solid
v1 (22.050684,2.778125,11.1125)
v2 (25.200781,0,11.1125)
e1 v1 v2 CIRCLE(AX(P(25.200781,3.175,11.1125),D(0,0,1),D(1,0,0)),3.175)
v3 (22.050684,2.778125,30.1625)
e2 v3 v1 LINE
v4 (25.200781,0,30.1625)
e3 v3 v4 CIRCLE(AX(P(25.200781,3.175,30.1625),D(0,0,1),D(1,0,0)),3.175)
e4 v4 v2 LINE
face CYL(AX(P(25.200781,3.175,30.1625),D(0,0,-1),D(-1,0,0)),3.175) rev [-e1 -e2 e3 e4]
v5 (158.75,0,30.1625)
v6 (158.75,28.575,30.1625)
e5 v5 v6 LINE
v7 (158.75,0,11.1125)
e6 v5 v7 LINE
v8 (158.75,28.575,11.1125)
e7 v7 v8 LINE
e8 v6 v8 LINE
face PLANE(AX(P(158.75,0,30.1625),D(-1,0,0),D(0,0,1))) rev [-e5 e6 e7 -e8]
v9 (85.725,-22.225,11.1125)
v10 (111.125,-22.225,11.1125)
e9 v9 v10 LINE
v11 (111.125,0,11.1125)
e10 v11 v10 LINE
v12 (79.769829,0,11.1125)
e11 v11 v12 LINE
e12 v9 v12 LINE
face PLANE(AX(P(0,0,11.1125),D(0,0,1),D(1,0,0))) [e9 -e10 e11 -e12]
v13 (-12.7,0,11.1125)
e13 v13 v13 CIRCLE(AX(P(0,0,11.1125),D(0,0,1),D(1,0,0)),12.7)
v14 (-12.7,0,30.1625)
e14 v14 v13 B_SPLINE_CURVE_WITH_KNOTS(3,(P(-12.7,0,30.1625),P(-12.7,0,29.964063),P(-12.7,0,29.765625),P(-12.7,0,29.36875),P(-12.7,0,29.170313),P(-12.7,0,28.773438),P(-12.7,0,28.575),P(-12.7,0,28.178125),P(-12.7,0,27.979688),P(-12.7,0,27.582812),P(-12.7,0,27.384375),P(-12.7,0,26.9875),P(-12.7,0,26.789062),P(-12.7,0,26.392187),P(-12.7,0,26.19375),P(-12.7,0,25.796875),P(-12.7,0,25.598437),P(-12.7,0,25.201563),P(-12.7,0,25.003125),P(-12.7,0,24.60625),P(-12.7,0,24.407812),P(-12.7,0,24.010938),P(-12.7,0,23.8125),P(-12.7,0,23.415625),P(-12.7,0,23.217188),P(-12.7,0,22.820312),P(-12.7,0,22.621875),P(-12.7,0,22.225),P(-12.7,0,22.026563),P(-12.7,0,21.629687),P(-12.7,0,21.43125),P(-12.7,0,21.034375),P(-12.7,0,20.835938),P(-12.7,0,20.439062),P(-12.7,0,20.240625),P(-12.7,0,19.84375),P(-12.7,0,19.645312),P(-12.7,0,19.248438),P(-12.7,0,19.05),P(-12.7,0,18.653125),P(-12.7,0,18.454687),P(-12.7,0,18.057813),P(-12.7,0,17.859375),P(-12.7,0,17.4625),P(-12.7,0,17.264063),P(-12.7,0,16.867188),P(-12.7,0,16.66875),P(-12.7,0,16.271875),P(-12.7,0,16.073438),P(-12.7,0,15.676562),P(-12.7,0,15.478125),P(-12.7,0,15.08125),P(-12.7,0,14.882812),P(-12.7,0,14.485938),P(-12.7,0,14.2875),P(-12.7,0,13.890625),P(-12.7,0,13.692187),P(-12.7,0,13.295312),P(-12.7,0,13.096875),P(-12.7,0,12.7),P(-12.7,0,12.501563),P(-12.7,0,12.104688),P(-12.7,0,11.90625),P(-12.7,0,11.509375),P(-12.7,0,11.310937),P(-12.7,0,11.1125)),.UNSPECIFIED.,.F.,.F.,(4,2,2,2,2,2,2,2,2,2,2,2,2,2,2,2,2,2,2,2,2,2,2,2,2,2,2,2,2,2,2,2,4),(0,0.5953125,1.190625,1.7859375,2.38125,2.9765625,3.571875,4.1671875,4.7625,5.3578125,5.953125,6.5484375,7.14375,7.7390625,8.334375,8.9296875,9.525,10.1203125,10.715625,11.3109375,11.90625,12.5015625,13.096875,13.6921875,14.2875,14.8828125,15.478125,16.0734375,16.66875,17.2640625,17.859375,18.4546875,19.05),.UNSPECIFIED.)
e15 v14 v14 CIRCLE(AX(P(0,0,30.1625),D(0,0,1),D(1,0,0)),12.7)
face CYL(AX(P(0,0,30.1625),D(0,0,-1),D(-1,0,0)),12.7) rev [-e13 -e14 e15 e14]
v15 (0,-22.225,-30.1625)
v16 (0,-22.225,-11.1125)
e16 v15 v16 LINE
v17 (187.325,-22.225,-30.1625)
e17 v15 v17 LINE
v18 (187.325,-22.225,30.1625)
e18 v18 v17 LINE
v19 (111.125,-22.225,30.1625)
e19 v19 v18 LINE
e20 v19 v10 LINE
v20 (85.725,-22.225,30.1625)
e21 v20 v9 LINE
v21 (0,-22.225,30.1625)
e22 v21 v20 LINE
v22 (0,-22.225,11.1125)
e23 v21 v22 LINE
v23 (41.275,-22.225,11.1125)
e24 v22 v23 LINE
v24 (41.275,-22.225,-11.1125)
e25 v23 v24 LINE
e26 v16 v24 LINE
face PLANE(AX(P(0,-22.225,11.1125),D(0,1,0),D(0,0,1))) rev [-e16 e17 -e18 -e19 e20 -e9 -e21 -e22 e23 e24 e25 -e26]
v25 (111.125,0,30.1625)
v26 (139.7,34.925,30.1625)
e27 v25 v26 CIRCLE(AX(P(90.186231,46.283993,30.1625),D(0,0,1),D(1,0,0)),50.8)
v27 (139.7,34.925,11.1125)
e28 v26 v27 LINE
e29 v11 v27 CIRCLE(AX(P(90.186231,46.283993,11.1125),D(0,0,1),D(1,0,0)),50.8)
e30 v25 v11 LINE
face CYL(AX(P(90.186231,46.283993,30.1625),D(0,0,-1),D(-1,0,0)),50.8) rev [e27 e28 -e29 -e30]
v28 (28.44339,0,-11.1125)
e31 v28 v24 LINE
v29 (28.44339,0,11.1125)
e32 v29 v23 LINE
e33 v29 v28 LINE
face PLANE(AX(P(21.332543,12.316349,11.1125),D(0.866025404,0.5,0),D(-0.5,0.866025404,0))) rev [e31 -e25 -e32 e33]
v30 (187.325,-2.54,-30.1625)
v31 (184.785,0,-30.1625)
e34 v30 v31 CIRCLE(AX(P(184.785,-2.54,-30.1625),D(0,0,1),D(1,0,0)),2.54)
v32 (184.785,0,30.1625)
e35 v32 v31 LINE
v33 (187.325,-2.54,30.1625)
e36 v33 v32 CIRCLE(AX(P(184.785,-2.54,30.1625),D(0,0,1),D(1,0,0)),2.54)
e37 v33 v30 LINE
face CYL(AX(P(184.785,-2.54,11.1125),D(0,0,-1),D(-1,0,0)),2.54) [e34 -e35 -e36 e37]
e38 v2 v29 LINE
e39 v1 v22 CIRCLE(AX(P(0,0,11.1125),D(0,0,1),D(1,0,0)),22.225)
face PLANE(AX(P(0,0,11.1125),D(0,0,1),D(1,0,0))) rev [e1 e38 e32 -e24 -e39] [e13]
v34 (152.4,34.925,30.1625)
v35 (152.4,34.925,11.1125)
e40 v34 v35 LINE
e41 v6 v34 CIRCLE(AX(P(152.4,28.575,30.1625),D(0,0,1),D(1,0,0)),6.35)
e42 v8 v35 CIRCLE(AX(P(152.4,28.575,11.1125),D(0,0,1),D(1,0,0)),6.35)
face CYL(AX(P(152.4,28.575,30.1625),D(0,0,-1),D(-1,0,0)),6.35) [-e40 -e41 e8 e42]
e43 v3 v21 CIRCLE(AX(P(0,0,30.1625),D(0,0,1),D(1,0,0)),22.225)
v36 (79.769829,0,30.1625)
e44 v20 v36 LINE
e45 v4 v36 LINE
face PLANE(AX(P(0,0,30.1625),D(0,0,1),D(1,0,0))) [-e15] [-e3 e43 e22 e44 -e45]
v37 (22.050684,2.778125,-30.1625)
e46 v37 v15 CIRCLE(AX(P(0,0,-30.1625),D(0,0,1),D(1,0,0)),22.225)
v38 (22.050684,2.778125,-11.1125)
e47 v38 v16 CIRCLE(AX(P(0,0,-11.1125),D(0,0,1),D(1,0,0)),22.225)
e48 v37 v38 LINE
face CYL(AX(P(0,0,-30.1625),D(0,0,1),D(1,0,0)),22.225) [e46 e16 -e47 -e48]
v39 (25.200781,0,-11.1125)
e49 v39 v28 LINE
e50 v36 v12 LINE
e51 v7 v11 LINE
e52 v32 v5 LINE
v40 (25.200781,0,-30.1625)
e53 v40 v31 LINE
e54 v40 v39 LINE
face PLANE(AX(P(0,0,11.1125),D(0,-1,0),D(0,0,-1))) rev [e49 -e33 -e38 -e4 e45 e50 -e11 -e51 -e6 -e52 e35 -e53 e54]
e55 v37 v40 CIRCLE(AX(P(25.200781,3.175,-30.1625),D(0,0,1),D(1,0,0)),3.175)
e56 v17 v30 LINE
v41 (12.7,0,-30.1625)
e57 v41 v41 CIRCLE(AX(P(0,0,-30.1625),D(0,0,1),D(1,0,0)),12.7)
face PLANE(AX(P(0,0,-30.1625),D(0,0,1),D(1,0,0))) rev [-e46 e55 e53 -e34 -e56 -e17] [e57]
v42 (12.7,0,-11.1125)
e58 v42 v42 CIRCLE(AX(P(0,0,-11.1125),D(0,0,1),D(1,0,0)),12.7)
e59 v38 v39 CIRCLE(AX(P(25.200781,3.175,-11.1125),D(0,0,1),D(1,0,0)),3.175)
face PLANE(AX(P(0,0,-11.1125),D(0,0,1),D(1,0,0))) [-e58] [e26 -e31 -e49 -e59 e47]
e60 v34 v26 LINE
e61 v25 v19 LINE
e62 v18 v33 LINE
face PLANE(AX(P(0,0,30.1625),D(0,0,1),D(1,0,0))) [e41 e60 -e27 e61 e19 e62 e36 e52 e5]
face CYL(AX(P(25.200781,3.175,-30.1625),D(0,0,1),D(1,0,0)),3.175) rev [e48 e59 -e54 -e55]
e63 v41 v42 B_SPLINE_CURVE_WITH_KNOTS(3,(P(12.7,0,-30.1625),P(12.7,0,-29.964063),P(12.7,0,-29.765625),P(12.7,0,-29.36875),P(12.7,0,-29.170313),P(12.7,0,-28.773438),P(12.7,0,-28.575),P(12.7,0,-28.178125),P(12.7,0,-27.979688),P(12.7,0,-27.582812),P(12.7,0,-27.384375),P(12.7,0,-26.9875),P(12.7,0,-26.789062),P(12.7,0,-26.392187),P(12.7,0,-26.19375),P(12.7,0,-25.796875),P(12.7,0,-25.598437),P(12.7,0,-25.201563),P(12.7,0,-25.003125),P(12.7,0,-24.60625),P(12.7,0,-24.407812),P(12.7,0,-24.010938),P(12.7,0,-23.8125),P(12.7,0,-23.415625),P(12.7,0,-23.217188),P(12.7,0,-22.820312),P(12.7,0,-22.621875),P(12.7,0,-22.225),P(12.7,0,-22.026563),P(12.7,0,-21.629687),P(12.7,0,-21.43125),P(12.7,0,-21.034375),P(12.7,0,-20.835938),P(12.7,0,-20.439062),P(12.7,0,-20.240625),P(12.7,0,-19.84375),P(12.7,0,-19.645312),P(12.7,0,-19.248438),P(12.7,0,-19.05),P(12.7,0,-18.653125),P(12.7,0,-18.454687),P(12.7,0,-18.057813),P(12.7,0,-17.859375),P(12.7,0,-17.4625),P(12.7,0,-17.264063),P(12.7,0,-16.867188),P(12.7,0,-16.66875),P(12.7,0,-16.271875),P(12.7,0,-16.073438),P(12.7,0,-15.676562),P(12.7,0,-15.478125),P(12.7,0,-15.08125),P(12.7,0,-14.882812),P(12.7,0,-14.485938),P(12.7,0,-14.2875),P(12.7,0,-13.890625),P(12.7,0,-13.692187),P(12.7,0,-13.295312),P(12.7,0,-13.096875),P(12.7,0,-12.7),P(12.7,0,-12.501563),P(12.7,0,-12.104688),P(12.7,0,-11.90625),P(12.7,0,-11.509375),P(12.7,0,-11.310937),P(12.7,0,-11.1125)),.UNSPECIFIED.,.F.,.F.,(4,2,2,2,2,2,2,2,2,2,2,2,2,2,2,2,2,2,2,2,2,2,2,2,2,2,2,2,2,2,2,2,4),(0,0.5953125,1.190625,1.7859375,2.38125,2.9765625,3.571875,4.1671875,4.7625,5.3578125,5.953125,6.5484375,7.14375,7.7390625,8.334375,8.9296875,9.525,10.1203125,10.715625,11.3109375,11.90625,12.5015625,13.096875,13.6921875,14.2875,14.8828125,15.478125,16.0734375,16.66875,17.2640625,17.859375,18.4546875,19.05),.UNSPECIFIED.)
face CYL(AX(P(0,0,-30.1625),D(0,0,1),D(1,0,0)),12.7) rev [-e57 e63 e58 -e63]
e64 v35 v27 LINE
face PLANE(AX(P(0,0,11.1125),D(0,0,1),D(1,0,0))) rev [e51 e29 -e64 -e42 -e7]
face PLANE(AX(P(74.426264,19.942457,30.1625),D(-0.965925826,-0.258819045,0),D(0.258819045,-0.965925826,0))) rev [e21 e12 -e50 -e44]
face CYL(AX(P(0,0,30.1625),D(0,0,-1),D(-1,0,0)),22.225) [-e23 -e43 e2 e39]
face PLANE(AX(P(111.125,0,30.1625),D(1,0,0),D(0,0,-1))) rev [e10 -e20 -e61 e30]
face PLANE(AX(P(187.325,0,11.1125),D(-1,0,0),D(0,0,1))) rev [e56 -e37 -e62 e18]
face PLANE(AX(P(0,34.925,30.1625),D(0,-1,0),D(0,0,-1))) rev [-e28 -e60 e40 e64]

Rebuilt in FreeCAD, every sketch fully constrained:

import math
import FreeCAD as App
import Part
import Sketcher
from FreeCAD import Vector
Q = App.Units.Quantity

doc = App.newDocument("Part")
body = doc.addObject("PartDesign::Body", "Body")

# Sketch on XY plane
sketch1 = doc.addObject("Sketcher::SketchObject", "Sketch")
body.addObject(sketch1)
sketch1.AttachmentSupport = (doc.XY_Plane, [""])
sketch1.MapMode = "FlatFace"
sketch1.addGeometry([
    Part.LineSegment(Vector(28.4, 0, 0), Vector(41.3, -22.2, 0)),  # 0
    Part.LineSegment(Vector(41.3, -22.2, 0), Vector(187.3, -22.2, 0)),  # 1
    Part.LineSegment(Vector(187.3, -22.2, 0), Vector(187.3, -2.5, 0)),  # 2
    Part.ArcOfCircle(Part.Circle(Vector(184.8, -2.5, 0), Vector(0, 0, 1), 2.5), math.radians(0), math.radians(90)),  # 3
    Part.LineSegment(Vector(184.8, 0, 0), Vector(28.4, 0, 0)),  # 4
], False)
sketch1.addConstraint([
    Sketcher.Constraint("Coincident", 0, 2, 1, 1),
    Sketcher.Constraint("Coincident", 1, 2, 2, 1),
    Sketcher.Constraint("Tangent", 2, 2, 3, 1),
    Sketcher.Constraint("Tangent", 3, 2, 4, 1),
    Sketcher.Constraint("Coincident", 4, 2, 0, 1),
    Sketcher.Constraint("Horizontal", 1),
    Sketcher.Constraint("Vertical", 2),
    Sketcher.Constraint("Horizontal", 4),
    Sketcher.Constraint("PointOnObject", 3, 2, -1),
    Sketcher.Constraint("Radius", 3, Q("0.1 in")),
    Sketcher.Constraint("Angle", 0, Q("-60 deg")),
    Sketcher.Constraint("DistanceX", 1, 1, 1, 2, Q("5.75 in")),
    Sketcher.Constraint("DistanceY", 2, 1, 2, 2, Q("0.775 in")),
    Sketcher.Constraint("DistanceX", -1, 1, 3, 3, Q("7.275 in")),
])
pad1 = doc.addObject("PartDesign::Pad", "Pad")
body.addObject(pad1)
pad1.Profile = sketch1
pad1.Length = Q("0.875 in")
pad1.Midplane = True

# Sketch on XY plane
sketch2 = doc.addObject("Sketcher::SketchObject", "Sketch001")
body.addObject(sketch2)
sketch2.AttachmentSupport = (doc.XY_Plane, [""])
sketch2.MapMode = "FlatFace"
sketch2.AttachmentOffset = App.Placement(Vector(0, 0, 0.4375 * 25.4), App.Rotation())
sketch2.addGeometry([
    Part.ArcOfCircle(Part.Circle(Vector(25.2, 3.2, 0), Vector(0, 0, 1), 3.2), math.radians(-173), math.radians(-90)),  # 0
    Part.ArcOfCircle(Part.Circle(Vector(0, 0, 0), Vector(0, 0, 1), 22.2), math.radians(7), math.radians(270)),  # 1
    Part.LineSegment(Vector(0, -22.2, 0), Vector(85.7, -22.2, 0)),  # 2
    Part.LineSegment(Vector(85.7, -22.2, 0), Vector(79.8, 0, 0)),  # 3
    Part.LineSegment(Vector(79.8, 0, 0), Vector(25.2, 0, 0)),  # 4
    Part.Circle(Vector(0, 0, 0), Vector(0, 0, 1), 12.7),  # 5
    Part.LineSegment(Vector(111.1, 0, 0), Vector(111.1, -22.2, 0)),  # 6
    Part.LineSegment(Vector(111.1, -22.2, 0), Vector(187.3, -22.2, 0)),  # 7
    Part.LineSegment(Vector(187.3, -22.2, 0), Vector(187.3, -2.5, 0)),  # 8
    Part.ArcOfCircle(Part.Circle(Vector(184.8, -2.5, 0), Vector(0, 0, 1), 2.5), math.radians(0), math.radians(90)),  # 9
    Part.LineSegment(Vector(184.8, 0, 0), Vector(158.8, 0, 0)),  # 10
    Part.LineSegment(Vector(158.8, 0, 0), Vector(158.8, 28.6, 0)),  # 11
    Part.ArcOfCircle(Part.Circle(Vector(152.4, 28.6, 0), Vector(0, 0, 1), 6.3), math.radians(0), math.radians(90)),  # 12
    Part.LineSegment(Vector(152.4, 34.9, 0), Vector(139.7, 34.9, 0)),  # 13
    Part.ArcOfCircle(Part.Circle(Vector(90.2, 46.3, 0), Vector(0, 0, 1), 50.8), math.radians(-66), math.radians(-13)),  # 14
], False)
sketch2.addConstraint([
    Sketcher.Constraint("Tangent", 0, 1, 1, 1),
    Sketcher.Constraint("Tangent", 1, 2, 2, 1),
    Sketcher.Constraint("Coincident", 2, 2, 3, 1),
    Sketcher.Constraint("Coincident", 3, 2, 4, 1),
    Sketcher.Constraint("Tangent", 4, 2, 0, 2),
    Sketcher.Constraint("Coincident", 6, 2, 7, 1),
    Sketcher.Constraint("Coincident", 7, 2, 8, 1),
    Sketcher.Constraint("Tangent", 8, 2, 9, 1),
    Sketcher.Constraint("Tangent", 9, 2, 10, 1),
    Sketcher.Constraint("Coincident", 10, 2, 11, 1),
    Sketcher.Constraint("Tangent", 11, 2, 12, 1),
    Sketcher.Constraint("Tangent", 12, 2, 13, 1),
    Sketcher.Constraint("Coincident", 13, 2, 14, 2),
    Sketcher.Constraint("Coincident", 14, 1, 6, 1),
    Sketcher.Constraint("Horizontal", 2),
    Sketcher.Constraint("Horizontal", 4),
    Sketcher.Constraint("Vertical", 6),
    Sketcher.Constraint("Horizontal", 7),
    Sketcher.Constraint("Vertical", 8),
    Sketcher.Constraint("Horizontal", 10),
    Sketcher.Constraint("Vertical", 11),
    Sketcher.Constraint("Horizontal", 13),
    Sketcher.Constraint("Coincident", 1, 3, -1, 1),
    Sketcher.Constraint("Coincident", 5, 3, -1, 1),
    Sketcher.Constraint("PointOnObject", 3, 2, -1),
    Sketcher.Constraint("PointOnObject", 9, 2, -1),
    Sketcher.Constraint("PointOnObject", 14, 1, -1),
    Sketcher.Constraint("Horizontal", 2, 2, 6, 2),
    Sketcher.Constraint("Diameter", 5, Q("1 in")),
    Sketcher.Constraint("Radius", 14, Q("2 in")),
    Sketcher.Constraint("Radius", 9, Q("0.1 in")),
    Sketcher.Constraint("DistanceX", 7, 1, 7, 2, Q("3 in")),
    Sketcher.Constraint("Radius", 12, Q("0.25 in")),
    Sketcher.Constraint("DistanceX", 13, 2, 13, 1, Q("0.5 in")),
    Sketcher.Constraint("DistanceX", -1, 1, 12, 3, Q("6 in")),
    Sketcher.Constraint("Angle", 3, Q("105 deg")),
    Sketcher.Constraint("Radius", 0, Q("0.125 in")),
    Sketcher.Constraint("Radius", 1, Q("0.875 in")),
    Sketcher.Constraint("DistanceY", 0, 3, 12, 3, Q("1 in")),
    Sketcher.Constraint("DistanceX", 2, 2, 6, 2, Q("1 in")),
    Sketcher.Constraint("DistanceX", 2, 1, 2, 2, Q("3.375 in")),
])
pad2 = doc.addObject("PartDesign::Pad", "Pad001")
body.addObject(pad2)
pad2.Profile = sketch2
pad2.Length = Q("0.75 in")

# Sketch on XY plane
sketch3 = doc.addObject("Sketcher::SketchObject", "Sketch002")
body.addObject(sketch3)
sketch3.AttachmentSupport = (doc.XY_Plane, [""])
sketch3.MapMode = "FlatFace"
sketch3.AttachmentOffset = App.Placement(Vector(0, 0, -0.4375 * 25.4), App.Rotation())
sketch3.addGeometry([
    Part.ArcOfCircle(Part.Circle(Vector(0, 0, 0), Vector(0, 0, 1), 22.2), math.radians(7), math.radians(270)),  # 0
    Part.LineSegment(Vector(0, -22.2, 0), Vector(187.3, -22.2, 0)),  # 1
    Part.LineSegment(Vector(187.3, -22.2, 0), Vector(187.3, -2.5, 0)),  # 2
    Part.ArcOfCircle(Part.Circle(Vector(184.8, -2.5, 0), Vector(0, 0, 1), 2.5), math.radians(0), math.radians(90)),  # 3
    Part.LineSegment(Vector(184.8, 0, 0), Vector(25.2, 0, 0)),  # 4
    Part.ArcOfCircle(Part.Circle(Vector(25.2, 3.2, 0), Vector(0, 0, 1), 3.2), math.radians(-173), math.radians(-90)),  # 5
    Part.Circle(Vector(0, 0, 0), Vector(0, 0, 1), 12.7),  # 6
], False)
sketch3.addConstraint([
    Sketcher.Constraint("Tangent", 0, 2, 1, 1),
    Sketcher.Constraint("Coincident", 1, 2, 2, 1),
    Sketcher.Constraint("Tangent", 2, 2, 3, 1),
    Sketcher.Constraint("Tangent", 3, 2, 4, 1),
    Sketcher.Constraint("Tangent", 4, 2, 5, 2),
    Sketcher.Constraint("Tangent", 5, 1, 0, 1),
    Sketcher.Constraint("Horizontal", 1),
    Sketcher.Constraint("Vertical", 2),
    Sketcher.Constraint("Horizontal", 4),
    Sketcher.Constraint("Coincident", 0, 3, -1, 1),
    Sketcher.Constraint("Coincident", 6, 3, -1, 1),
    Sketcher.Constraint("PointOnObject", 3, 2, -1),
    Sketcher.Constraint("Diameter", 6, Q("1 in")),
    Sketcher.Constraint("Radius", 3, Q("0.1 in")),
    Sketcher.Constraint("Radius", 0, Q("0.875 in")),
    Sketcher.Constraint("Radius", 5, Q("0.125 in")),
    Sketcher.Constraint("DistanceX", 1, 1, 1, 2, Q("7.375 in")),
])
pad3 = doc.addObject("PartDesign::Pad", "Pad002")
body.addObject(pad3)
pad3.Profile = sketch3
pad3.Length = Q("0.75 in")
pad3.Reversed = True

doc.recompute()
